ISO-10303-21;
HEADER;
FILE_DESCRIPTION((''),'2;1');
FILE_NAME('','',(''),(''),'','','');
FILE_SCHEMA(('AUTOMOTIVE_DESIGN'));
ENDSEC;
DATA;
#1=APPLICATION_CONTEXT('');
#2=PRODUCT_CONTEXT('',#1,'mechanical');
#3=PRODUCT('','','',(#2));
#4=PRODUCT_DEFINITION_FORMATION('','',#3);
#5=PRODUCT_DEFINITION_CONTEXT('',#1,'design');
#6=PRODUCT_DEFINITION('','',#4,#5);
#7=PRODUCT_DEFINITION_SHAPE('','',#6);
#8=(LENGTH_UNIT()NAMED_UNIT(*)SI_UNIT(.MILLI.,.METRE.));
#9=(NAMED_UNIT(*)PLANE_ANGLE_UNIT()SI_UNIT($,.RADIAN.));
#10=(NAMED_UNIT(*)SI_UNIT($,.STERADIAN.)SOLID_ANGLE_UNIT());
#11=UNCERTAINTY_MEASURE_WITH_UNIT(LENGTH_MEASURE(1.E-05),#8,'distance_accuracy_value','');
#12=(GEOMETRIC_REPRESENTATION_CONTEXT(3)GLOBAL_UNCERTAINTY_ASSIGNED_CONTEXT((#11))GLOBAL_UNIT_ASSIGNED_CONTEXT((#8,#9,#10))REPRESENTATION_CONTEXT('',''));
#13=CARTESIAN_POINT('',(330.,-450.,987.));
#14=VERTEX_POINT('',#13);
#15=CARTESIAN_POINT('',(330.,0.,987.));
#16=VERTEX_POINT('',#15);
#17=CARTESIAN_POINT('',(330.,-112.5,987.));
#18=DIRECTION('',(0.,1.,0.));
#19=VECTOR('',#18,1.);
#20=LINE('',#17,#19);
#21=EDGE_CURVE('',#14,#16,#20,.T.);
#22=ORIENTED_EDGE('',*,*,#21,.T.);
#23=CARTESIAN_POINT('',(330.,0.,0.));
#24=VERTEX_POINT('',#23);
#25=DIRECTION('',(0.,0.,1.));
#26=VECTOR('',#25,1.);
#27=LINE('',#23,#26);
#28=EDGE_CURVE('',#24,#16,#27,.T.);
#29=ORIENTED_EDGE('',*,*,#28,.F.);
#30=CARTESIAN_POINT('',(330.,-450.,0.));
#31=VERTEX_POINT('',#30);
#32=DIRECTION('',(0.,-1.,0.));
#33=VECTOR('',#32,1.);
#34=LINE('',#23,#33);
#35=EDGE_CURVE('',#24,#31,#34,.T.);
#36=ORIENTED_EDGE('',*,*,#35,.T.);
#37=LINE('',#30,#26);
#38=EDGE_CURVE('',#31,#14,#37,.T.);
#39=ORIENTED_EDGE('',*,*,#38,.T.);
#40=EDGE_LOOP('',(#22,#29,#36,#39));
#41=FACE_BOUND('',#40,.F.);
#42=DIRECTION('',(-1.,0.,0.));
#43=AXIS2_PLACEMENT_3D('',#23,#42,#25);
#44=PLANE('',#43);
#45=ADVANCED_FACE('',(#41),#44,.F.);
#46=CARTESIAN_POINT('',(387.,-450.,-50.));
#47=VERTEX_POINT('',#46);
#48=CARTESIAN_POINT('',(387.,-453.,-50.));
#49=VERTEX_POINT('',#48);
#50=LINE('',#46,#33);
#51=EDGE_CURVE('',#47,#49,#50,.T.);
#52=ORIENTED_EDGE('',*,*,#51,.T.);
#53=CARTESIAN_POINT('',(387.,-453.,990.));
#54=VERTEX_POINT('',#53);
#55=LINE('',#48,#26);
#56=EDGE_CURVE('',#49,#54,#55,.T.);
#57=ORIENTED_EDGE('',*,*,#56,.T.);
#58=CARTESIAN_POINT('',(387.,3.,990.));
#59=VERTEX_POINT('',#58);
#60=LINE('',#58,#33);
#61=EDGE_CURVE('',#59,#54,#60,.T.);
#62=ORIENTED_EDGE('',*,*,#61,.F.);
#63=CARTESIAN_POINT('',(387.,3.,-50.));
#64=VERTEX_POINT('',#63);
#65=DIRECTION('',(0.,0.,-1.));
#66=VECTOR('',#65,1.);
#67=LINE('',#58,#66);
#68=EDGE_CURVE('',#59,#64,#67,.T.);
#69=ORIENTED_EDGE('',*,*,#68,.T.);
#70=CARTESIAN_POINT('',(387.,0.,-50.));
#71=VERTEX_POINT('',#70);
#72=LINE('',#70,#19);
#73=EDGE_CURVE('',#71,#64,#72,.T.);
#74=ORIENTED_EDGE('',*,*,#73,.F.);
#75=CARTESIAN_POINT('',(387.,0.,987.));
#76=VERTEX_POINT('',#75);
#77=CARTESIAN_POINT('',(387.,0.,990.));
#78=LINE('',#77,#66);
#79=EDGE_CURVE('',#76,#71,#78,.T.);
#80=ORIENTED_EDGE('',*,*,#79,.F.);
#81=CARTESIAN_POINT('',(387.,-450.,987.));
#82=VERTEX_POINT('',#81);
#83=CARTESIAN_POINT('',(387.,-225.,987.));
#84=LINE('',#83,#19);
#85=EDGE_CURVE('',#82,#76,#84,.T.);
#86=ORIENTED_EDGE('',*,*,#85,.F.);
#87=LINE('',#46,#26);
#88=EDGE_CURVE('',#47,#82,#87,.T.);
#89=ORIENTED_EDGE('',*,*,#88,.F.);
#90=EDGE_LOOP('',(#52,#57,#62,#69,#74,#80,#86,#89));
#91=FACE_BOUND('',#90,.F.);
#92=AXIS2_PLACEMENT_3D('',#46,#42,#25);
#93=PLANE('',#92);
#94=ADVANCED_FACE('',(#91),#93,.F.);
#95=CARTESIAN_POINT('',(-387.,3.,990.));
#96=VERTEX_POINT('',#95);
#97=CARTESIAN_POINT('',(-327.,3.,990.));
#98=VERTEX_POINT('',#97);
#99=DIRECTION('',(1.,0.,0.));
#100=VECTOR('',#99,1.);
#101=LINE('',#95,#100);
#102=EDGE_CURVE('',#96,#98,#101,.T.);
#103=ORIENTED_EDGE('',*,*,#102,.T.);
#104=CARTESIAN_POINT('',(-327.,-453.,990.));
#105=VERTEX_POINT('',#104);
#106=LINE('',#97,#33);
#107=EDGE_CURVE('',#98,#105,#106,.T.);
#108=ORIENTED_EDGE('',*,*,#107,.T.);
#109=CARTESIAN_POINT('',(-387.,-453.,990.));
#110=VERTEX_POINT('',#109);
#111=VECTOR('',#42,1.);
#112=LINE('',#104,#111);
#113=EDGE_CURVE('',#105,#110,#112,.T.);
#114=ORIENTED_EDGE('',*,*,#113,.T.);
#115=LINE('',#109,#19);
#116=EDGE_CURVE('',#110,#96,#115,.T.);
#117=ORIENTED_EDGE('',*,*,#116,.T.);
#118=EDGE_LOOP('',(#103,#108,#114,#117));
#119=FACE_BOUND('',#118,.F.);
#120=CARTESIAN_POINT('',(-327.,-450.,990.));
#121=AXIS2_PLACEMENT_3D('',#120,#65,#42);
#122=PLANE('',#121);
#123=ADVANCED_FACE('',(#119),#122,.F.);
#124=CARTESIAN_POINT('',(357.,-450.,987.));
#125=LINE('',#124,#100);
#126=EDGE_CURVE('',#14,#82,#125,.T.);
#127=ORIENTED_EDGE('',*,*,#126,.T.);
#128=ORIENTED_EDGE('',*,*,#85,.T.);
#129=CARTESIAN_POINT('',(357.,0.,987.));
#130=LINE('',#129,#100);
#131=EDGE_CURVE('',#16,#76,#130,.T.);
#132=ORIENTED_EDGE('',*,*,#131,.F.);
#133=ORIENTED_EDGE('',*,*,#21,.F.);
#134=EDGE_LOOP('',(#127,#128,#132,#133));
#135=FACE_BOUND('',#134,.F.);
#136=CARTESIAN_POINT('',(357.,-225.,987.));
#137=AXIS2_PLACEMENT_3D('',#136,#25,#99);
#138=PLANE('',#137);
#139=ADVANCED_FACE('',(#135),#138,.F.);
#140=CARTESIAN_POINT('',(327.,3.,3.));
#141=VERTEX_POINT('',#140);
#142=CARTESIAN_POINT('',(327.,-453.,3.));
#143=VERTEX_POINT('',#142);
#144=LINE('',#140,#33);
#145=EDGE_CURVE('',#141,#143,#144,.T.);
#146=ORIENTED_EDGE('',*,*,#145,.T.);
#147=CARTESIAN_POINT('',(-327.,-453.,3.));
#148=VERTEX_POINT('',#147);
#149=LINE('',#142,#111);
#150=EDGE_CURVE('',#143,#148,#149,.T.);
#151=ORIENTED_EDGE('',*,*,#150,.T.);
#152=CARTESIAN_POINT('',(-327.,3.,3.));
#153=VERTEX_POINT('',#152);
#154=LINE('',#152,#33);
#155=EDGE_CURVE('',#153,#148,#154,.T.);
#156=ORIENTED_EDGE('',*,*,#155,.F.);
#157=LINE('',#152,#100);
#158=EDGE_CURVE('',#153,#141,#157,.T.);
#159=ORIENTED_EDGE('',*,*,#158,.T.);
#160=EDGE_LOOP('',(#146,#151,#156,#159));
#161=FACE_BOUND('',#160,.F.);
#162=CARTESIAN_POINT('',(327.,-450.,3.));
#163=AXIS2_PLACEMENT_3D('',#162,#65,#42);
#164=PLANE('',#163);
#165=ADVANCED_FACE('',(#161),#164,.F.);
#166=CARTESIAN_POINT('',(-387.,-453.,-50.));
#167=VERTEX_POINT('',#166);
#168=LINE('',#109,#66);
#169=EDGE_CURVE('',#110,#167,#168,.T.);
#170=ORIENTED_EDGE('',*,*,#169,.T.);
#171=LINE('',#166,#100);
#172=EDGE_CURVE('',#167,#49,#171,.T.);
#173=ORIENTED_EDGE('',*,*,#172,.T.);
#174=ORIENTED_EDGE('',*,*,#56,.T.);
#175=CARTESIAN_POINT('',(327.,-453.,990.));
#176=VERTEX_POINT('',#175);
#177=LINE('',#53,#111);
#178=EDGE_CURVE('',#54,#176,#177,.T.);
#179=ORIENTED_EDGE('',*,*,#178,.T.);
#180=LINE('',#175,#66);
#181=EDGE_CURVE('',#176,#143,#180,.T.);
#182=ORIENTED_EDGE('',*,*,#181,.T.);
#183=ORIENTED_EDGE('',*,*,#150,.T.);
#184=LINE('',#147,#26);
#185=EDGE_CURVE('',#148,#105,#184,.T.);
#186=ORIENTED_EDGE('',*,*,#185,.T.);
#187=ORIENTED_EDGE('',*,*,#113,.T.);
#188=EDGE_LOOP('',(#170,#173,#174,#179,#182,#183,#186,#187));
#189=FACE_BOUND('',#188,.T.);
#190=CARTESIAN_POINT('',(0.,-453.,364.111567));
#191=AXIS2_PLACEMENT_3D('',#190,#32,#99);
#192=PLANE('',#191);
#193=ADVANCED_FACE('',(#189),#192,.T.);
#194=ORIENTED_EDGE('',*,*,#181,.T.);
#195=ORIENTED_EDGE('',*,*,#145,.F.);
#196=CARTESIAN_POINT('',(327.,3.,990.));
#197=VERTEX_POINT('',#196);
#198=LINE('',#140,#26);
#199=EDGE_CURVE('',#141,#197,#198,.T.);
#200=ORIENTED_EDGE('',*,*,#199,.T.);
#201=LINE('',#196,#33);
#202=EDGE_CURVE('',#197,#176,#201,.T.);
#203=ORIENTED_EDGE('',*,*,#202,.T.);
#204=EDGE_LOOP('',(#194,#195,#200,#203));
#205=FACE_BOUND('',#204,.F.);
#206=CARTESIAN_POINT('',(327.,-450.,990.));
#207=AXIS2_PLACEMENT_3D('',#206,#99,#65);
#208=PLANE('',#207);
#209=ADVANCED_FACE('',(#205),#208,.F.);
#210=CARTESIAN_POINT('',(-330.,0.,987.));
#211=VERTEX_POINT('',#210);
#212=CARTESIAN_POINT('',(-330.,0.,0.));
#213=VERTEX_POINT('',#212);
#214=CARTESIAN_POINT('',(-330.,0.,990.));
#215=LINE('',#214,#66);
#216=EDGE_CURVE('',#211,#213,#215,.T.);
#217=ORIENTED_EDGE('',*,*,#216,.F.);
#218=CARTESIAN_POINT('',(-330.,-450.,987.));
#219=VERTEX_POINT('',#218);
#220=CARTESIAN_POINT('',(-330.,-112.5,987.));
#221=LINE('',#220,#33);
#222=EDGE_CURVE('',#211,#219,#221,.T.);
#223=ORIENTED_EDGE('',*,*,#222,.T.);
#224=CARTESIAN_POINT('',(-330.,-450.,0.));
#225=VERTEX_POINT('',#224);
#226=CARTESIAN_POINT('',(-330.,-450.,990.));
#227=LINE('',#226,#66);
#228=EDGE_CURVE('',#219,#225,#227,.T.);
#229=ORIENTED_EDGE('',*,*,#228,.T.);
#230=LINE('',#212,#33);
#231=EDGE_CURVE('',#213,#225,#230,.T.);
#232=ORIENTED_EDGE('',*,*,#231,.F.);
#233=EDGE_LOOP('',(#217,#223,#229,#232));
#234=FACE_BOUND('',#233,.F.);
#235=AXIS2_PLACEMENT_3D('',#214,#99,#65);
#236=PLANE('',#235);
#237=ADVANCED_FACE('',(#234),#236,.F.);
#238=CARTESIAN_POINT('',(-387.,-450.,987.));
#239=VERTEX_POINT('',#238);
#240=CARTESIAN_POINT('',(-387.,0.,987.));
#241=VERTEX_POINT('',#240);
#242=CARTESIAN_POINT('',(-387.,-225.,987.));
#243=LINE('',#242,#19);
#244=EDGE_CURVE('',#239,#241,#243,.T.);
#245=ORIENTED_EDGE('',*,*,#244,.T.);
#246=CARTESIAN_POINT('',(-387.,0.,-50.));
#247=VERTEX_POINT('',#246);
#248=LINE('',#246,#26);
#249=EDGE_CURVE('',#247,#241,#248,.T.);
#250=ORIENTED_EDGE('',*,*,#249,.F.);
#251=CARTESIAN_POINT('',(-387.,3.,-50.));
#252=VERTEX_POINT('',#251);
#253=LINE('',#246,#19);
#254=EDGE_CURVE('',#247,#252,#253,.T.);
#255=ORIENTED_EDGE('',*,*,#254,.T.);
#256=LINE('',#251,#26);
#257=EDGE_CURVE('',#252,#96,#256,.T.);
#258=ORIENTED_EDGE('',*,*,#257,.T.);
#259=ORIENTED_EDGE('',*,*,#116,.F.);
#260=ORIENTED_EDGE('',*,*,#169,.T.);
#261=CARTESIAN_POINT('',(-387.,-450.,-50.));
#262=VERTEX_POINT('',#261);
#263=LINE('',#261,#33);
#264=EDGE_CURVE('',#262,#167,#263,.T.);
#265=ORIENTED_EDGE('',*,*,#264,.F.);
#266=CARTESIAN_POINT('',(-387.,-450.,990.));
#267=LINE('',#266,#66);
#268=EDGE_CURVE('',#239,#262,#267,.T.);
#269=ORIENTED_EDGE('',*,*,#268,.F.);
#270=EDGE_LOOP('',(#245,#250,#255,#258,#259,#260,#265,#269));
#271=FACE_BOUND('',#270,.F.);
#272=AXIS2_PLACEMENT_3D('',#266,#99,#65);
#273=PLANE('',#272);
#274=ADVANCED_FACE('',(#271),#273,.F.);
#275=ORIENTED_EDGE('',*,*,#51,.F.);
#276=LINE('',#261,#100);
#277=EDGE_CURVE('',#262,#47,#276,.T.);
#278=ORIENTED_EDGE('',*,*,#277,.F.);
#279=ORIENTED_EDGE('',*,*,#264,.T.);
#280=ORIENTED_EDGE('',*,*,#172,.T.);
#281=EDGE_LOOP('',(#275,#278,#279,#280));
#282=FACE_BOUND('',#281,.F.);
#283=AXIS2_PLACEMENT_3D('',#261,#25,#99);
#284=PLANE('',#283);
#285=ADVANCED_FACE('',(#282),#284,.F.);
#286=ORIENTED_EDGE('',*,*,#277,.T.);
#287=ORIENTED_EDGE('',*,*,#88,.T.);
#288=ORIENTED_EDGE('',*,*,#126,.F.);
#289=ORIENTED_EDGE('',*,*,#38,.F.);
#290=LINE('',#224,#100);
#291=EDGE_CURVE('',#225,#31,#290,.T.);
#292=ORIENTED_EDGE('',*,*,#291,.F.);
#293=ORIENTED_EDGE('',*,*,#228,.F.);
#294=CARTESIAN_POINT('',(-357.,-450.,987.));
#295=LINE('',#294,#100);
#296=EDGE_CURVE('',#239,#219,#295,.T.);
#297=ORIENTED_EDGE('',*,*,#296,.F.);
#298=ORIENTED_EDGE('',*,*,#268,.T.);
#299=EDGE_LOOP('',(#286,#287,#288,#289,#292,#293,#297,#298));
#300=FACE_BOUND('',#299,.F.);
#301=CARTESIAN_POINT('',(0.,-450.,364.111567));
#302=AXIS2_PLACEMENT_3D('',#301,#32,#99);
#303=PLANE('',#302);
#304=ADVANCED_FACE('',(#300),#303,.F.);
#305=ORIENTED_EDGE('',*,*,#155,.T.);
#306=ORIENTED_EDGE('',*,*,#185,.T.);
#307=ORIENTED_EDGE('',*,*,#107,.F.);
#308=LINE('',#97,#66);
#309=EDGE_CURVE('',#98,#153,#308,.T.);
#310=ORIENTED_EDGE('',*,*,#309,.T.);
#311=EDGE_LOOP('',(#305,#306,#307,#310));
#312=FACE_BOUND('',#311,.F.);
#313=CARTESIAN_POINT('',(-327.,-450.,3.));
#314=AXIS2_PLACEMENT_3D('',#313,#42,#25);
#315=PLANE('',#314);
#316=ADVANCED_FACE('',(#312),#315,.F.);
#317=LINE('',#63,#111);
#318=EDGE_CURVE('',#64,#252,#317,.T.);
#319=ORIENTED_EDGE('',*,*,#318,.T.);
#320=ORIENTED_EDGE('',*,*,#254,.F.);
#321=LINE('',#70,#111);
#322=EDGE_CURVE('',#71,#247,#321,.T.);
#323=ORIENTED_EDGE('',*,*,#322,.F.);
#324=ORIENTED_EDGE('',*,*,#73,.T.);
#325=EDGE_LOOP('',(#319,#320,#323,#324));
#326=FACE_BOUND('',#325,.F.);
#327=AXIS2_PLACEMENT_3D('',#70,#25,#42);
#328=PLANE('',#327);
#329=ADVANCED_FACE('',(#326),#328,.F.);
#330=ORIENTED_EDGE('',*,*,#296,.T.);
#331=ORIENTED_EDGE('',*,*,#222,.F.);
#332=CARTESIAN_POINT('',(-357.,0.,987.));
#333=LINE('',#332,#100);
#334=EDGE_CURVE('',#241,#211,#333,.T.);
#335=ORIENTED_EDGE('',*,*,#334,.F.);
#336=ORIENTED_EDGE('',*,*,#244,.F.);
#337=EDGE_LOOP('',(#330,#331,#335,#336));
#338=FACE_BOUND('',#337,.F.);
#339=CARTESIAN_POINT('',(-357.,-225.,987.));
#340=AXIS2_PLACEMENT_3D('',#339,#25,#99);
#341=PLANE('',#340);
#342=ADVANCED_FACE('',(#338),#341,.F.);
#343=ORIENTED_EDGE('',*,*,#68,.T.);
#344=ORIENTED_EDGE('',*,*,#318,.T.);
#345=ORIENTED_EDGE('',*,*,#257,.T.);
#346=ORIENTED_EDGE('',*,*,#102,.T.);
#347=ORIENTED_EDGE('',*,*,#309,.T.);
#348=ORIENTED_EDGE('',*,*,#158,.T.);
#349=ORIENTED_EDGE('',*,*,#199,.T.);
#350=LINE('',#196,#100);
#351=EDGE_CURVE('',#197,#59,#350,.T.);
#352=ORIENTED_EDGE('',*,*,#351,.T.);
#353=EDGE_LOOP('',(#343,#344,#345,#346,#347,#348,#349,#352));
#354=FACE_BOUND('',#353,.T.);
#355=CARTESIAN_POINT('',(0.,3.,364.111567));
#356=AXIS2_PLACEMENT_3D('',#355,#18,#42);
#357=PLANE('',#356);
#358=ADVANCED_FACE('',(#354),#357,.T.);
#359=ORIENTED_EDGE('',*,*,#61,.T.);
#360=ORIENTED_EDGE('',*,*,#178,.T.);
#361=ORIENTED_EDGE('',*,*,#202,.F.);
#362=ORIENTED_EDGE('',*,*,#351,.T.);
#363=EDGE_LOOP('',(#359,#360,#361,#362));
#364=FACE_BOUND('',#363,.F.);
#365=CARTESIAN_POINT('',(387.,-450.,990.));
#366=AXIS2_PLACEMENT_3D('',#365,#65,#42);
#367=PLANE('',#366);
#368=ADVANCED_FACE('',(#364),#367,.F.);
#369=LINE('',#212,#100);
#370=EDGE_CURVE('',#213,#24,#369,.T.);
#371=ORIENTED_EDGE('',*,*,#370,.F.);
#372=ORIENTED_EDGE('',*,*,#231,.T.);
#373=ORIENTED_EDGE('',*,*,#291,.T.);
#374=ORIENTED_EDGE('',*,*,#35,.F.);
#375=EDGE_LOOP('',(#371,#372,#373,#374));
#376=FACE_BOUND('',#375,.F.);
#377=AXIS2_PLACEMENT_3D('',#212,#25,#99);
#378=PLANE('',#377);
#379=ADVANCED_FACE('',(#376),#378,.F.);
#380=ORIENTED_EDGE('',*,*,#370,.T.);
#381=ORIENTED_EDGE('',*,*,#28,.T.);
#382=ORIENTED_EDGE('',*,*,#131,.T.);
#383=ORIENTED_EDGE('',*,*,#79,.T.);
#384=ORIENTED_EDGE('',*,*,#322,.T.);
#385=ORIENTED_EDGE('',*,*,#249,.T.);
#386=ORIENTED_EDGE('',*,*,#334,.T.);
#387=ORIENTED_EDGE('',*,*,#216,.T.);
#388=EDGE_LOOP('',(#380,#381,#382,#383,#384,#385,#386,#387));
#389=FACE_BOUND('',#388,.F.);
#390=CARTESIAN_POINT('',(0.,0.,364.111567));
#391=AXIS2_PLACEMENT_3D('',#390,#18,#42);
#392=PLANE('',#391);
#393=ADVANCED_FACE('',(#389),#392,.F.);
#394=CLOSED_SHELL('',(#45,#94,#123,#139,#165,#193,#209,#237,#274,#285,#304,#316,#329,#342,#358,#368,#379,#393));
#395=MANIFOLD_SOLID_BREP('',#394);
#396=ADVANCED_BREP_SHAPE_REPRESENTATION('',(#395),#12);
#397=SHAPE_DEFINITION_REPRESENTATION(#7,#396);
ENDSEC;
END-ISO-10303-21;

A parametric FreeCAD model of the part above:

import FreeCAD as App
import Part
import Sketcher


def faces_at(feature, points):
    """Names of the faces that lie closest to the given points."""
    faces = feature.Shape.Faces
    near = lambda p: min(range(len(faces)), key=lambda i: faces[i].distToShape(Part.Vertex(*p))[0])
    return sorted({f"Face{near(p) + 1}" for p in points})


def add_polygon(sketch, points):
    """Adds a closed chain of lines whose ends are joined by coincident constraints."""
    first, n = sketch.GeometryCount, len(points)
    for a, b in zip(points, points[1:] + points[:1]):
        sketch.addGeometry(Part.LineSegment(App.Vector(*a, 0), App.Vector(*b, 0)), False)
    for i in range(n):
        sketch.addConstraint(Sketcher.Constraint("Coincident", first + i, 2, first + (i + 1) % n, 1))

doc = App.newDocument("Part")
body = doc.addObject("PartDesign::Body", "Body")

sketch1 = body.newObject("Sketcher::SketchObject", "Sketch")
sketch1.AttachmentSupport = (doc.getObject("XZ_Plane"), [""])
sketch1.MapMode = "FlatFace"
add_polygon(sketch1, [(330, 990), (-330, 990), (-330, 0), (330, 0)])
sketch1.addConstraint(Sketcher.Constraint("Horizontal", 0))
sketch1.addConstraint(Sketcher.Constraint("Vertical", 1))
sketch1.addConstraint(Sketcher.Constraint("Horizontal", 2))
sketch1.addConstraint(Sketcher.Constraint("Vertical", 3))
sketch1.addConstraint(Sketcher.Constraint("Symmetric", 1, 2, 2, 2, -1, 1))
sketch1.addConstraint(Sketcher.Constraint("DistanceX", 0, 2, 0, 1, 660.0))
sketch1.addConstraint(Sketcher.Constraint("DistanceY", 1, 2, 1, 1, 990.0))
pad1 = body.newObject("PartDesign::Pad", "Pad")
pad1.Profile = sketch1
pad1.Length = 450
doc.recompute()

thickness = body.newObject("PartDesign::Thickness", "Thickness")
thickness.Base = (pad1, faces_at(pad1, [(0, -450, 495), (0, -225, 990), (0, 0, 495)]))
thickness.Value = 3
thickness.Reversed = True
thickness.Join = "Arc"

sketch2 = body.newObject("Sketcher::SketchObject", "Sketch001")
sketch2.AttachmentSupport = (doc.getObject("XY_Plane"), [""])
sketch2.MapMode = "FlatFace"
sketch2.AttachmentOffset = App.Placement(App.Vector(0, 0, 990), App.Rotation())
add_polygon(sketch2, [(-387, 0), (-387, -450), (-327, -450), (-327, 0)])
add_polygon(sketch2, [(327, 0), (327, -450), (387, -450), (387, 0)])
sketch2.addConstraint(Sketcher.Constraint("Vertical", 0))
sketch2.addConstraint(Sketcher.Constraint("Horizontal", 1))
sketch2.addConstraint(Sketcher.Constraint("Vertical", 2))
sketch2.addConstraint(Sketcher.Constraint("Horizontal", 3))
sketch2.addConstraint(Sketcher.Constraint("Vertical", 4))
sketch2.addConstraint(Sketcher.Constraint("Horizontal", 5))
sketch2.addConstraint(Sketcher.Constraint("Vertical", 6))
sketch2.addConstraint(Sketcher.Constraint("Horizontal", 7))
sketch2.addConstraint(Sketcher.Constraint("Symmetric", 3, 2, 6, 2, -1, 1))
sketch2.addConstraint(Sketcher.Constraint("Symmetric", 1, 2, 4, 2, -2))
sketch2.addConstraint(Sketcher.Constraint("PointOnObject", 2, 2, -1))
sketch2.addConstraint(Sketcher.Constraint("DistanceX", 1, 1, 1, 2, 60.0))
sketch2.addConstraint(Sketcher.Constraint("DistanceY", 0, 2, 0, 1, 450.0))
sketch2.addConstraint(Sketcher.Constraint("DistanceX", 0, 2, -1, 1, 387.0))
pad2 = body.newObject("PartDesign::Pad", "Pad001")
pad2.Profile = sketch2
pad2.Length = 3
pad2.Reversed = True

sketch3 = body.newObject("Sketcher::SketchObject", "Sketch002")
sketch3.AttachmentSupport = (doc.getObject("XZ_Plane"), [""])
sketch3.MapMode = "FlatFace"
add_polygon(sketch3, [(-387, 990), (-327, 990), (-327, 3), (327, 3), (327, 990), (387, 990), (387, -50), (-387, -50)])
sketch3.addConstraint(Sketcher.Constraint("Horizontal", 0))
sketch3.addConstraint(Sketcher.Constraint("Vertical", 1))
sketch3.addConstraint(Sketcher.Constraint("Horizontal", 2))
sketch3.addConstraint(Sketcher.Constraint("Vertical", 3))
sketch3.addConstraint(Sketcher.Constraint("Horizontal", 4))
sketch3.addConstraint(Sketcher.Constraint("Vertical", 5))
sketch3.addConstraint(Sketcher.Constraint("Horizontal", 6))
sketch3.addConstraint(Sketcher.Constraint("Vertical", 7))
sketch3.addConstraint(Sketcher.Constraint("Symmetric", 0, 2, 3, 2, -2))
sketch3.addConstraint(Sketcher.Constraint("Equal", 0, 4))
sketch3.addConstraint(Sketcher.Constraint("DistanceX", 0, 1, 0, 2, 60.0))
sketch3.addConstraint(Sketcher.Constraint("DistanceX", 2, 1, 2, 2, 654.0))
sketch3.addConstraint(Sketcher.Constraint("DistanceY", 1, 2, 1, 1, 987.0))
sketch3.addConstraint(Sketcher.Constraint("DistanceY", 5, 2, 5, 1, 1040.0))
sketch3.addConstraint(Sketcher.Constraint("DistanceY", -1, 1, 0, 2, 990.0))
pad3 = body.newObject("PartDesign::Pad", "Pad002")
pad3.Profile = sketch3
pad3.Length = 3
pad3.Reversed = True

sketch4 = body.newObject("Sketcher::SketchObject", "Sketch003")
sketch4.AttachmentSupport = (doc.getObject("XZ_Plane"), [""])
sketch4.MapMode = "FlatFace"
sketch4.AttachmentOffset = App.Placement(App.Vector(0, 0, 450), App.Rotation())
add_polygon(sketch4, [(387, -50), (387, 990), (327, 990), (327, 3), (-327, 3), (-327, 990), (-387, 990), (-387, -50)])
sketch4.addConstraint(Sketcher.Constraint("Vertical", 0))
sketch4.addConstraint(Sketcher.Constraint("Horizontal", 1))
sketch4.addConstraint(Sketcher.Constraint("Vertical", 2))
sketch4.addConstraint(Sketcher.Constraint("Horizontal", 3))
sketch4.addConstraint(Sketcher.Constraint("Vertical", 4))
sketch4.addConstraint(Sketcher.Constraint("Horizontal", 5))
sketch4.addConstraint(Sketcher.Constraint("Vertical", 6))
sketch4.addConstraint(Sketcher.Constraint("Horizontal", 7))
sketch4.addConstraint(Sketcher.Constraint("Symmetric", 1, 2, 4, 2, -2))
sketch4.addConstraint(Sketcher.Constraint("Equal", 1, 5))
sketch4.addConstraint(Sketcher.Constraint("DistanceX", 1, 2, 1, 1, 60.0))
sketch4.addConstraint(Sketcher.Constraint("DistanceX", 3, 2, 3, 1, 654.0))
sketch4.addConstraint(Sketcher.Constraint("DistanceY", 0, 1, 0, 2, 1040.0))
sketch4.addConstraint(Sketcher.Constraint("DistanceY", 2, 2, 2, 1, 987.0))
sketch4.addConstraint(Sketcher.Constraint("DistanceY", -1, 1, 0, 2, 990.0))
pad4 = body.newObject("PartDesign::Pad", "Pad003")
pad4.Profile = sketch4
pad4.Length = 3

doc.recompute()
